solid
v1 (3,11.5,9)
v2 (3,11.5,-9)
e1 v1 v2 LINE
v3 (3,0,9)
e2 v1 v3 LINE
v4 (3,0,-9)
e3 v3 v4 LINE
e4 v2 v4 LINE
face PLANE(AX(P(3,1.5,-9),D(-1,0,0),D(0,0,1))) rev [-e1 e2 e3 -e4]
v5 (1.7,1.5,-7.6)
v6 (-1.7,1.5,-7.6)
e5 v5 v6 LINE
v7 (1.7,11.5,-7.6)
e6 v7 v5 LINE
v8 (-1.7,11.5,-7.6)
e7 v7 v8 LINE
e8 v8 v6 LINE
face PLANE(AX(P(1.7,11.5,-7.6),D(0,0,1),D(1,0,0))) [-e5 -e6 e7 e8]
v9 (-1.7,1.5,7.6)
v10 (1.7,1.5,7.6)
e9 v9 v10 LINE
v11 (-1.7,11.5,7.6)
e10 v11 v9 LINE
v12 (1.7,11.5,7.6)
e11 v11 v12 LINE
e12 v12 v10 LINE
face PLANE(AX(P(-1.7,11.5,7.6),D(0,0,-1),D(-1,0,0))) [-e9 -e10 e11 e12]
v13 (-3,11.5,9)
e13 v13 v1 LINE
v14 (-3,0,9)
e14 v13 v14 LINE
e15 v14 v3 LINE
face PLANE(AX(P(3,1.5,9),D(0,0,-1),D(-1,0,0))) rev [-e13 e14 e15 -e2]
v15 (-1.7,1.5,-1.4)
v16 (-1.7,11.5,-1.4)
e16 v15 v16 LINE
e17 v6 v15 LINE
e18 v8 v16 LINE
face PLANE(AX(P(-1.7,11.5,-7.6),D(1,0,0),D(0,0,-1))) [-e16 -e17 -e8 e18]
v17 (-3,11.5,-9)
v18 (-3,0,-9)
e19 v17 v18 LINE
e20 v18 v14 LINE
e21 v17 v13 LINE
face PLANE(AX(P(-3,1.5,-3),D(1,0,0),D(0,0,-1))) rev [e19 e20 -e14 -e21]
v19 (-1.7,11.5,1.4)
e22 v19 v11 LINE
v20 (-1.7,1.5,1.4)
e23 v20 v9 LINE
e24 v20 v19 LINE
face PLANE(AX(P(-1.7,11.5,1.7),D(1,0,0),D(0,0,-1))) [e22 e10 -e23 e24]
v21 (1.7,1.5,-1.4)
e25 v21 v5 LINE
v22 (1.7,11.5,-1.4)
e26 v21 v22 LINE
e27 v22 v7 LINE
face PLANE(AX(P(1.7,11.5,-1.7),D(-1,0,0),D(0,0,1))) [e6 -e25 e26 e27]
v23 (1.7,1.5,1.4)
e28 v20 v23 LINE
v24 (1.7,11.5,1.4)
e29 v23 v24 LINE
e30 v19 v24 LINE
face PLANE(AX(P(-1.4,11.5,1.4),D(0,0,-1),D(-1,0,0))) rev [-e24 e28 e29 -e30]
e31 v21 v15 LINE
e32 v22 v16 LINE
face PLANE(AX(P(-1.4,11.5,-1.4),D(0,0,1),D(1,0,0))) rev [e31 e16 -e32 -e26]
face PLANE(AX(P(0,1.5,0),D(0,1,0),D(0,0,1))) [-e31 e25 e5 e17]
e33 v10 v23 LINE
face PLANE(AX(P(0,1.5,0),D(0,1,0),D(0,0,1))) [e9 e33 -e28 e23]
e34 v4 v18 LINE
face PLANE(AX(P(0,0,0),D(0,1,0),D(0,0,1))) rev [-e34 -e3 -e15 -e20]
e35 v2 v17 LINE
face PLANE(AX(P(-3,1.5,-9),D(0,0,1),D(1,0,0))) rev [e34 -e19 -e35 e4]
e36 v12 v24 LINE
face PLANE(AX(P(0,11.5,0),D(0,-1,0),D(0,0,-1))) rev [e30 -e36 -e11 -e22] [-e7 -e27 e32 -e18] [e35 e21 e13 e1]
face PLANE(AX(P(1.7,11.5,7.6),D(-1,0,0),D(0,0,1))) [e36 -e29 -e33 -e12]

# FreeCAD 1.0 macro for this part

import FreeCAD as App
import Part
import Sketcher

V = App.Vector
Q = App.Units.Quantity

doc = App.newDocument("Part")
body = doc.addObject("PartDesign::Body", "Body")

# Sketch on XZ plane
sketch1 = body.newObject("Sketcher::SketchObject", "Sketch")
sketch1.AttachmentSupport = (doc.getObject("XZ_Plane"), [""])
sketch1.MapMode = "FlatFace"
sketch1.addGeometry([
    Part.LineSegment(V(-3, -9, 0), V(-3, -3, 0)),  # 0
    Part.LineSegment(V(-3, -3, 0), V(-9, -3, 0)),  # 1
    Part.LineSegment(V(-9, -3, 0), V(-9, 3, 0)),  # 2
    Part.LineSegment(V(-9, 3, 0), V(-3, 3, 0)),  # 3
    Part.LineSegment(V(-3, 3, 0), V(-3, 9, 0)),  # 4
    Part.LineSegment(V(-3, 9, 0), V(3, 9, 0)),  # 5
    Part.LineSegment(V(3, 9, 0), V(3, 3, 0)),  # 6
    Part.LineSegment(V(3, 3, 0), V(9, 3, 0)),  # 7
    Part.LineSegment(V(9, 3, 0), V(9, -3, 0)),  # 8
    Part.LineSegment(V(9, -3, 0), V(3, -3, 0)),  # 9
    Part.LineSegment(V(3, -3, 0), V(3, -9, 0)),  # 10
    Part.LineSegment(V(3, -9, 0), V(-3, -9, 0)),  # 11
], False)
sketch1.addConstraint([
    Sketcher.Constraint("Coincident", 0, 2, 1, 1),
    Sketcher.Constraint("Coincident", 1, 2, 2, 1),
    Sketcher.Constraint("Coincident", 2, 2, 3, 1),
    Sketcher.Constraint("Coincident", 3, 2, 4, 1),
    Sketcher.Constraint("Coincident", 4, 2, 5, 1),
    Sketcher.Constraint("Coincident", 5, 2, 6, 1),
    Sketcher.Constraint("Coincident", 6, 2, 7, 1),
    Sketcher.Constraint("Coincident", 7, 2, 8, 1),
    Sketcher.Constraint("Coincident", 8, 2, 9, 1),
    Sketcher.Constraint("Coincident", 9, 2, 10, 1),
    Sketcher.Constraint("Coincident", 10, 2, 11, 1),
    Sketcher.Constraint("Coincident", 11, 2, 0, 1),
    Sketcher.Constraint("Vertical", 0),
    Sketcher.Constraint("Horizontal", 1),
    Sketcher.Constraint("Vertical", 2),
    Sketcher.Constraint("Horizontal", 3),
    Sketcher.Constraint("Vertical", 4),
    Sketcher.Constraint("Horizontal", 5),
    Sketcher.Constraint("Vertical", 6),
    Sketcher.Constraint("Horizontal", 7),
    Sketcher.Constraint("Vertical", 8),
    Sketcher.Constraint("Horizontal", 9),
    Sketcher.Constraint("Vertical", 10),
    Sketcher.Constraint("Horizontal", 11),
    Sketcher.Constraint("Symmetric", 0, 2, 6, 2, -1, 1),
    Sketcher.Constraint("Symmetric", 2, 2, 8, 2, -1, 1),
    Sketcher.Constraint("Symmetric", 4, 2, 10, 2, -1, 1),
    Sketcher.Constraint("Symmetric", 3, 2, 6, 2, -2),
    Sketcher.Constraint("Equal", 3, 5),
    Sketcher.Constraint("Equal", 11, 0),
    Sketcher.Constraint("Equal", 0, 2),
    Sketcher.Constraint("DistanceX", 1, 2, 1, 1, Q("6 mm")),
])
pad1 = body.newObject("PartDesign::Pad", "Pad")
pad1.Profile = sketch1
pad1.Length = 1.5
pad1.Reversed = True

# Sketch on XZ plane
sketch2 = body.newObject("Sketcher::SketchObject", "Sketch001")
sketch2.AttachmentSupport = (doc.getObject("XZ_Plane"), [""])
sketch2.MapMode = "FlatFace"
sketch2.AttachmentOffset = App.Placement(V(0, 0, -1.5), App.Rotation())
sketch2.addGeometry([
    Part.LineSegment(V(-3, -3, 0), V(-9, -3, 0)),  # 0
    Part.LineSegment(V(-9, -3, 0), V(-9, 3, 0)),  # 1
    Part.LineSegment(V(-9, 3, 0), V(-3, 3, 0)),  # 2
    Part.LineSegment(V(-3, 3, 0), V(-3, 9, 0)),  # 3
    Part.LineSegment(V(-3, 9, 0), V(3, 9, 0)),  # 4
    Part.LineSegment(V(3, 9, 0), V(3, 3, 0)),  # 5
    Part.LineSegment(V(3, 3, 0), V(9, 3, 0)),  # 6
    Part.LineSegment(V(9, 3, 0), V(9, -3, 0)),  # 7
    Part.LineSegment(V(9, -3, 0), V(3, -3, 0)),  # 8
    Part.LineSegment(V(3, -3, 0), V(3, -9, 0)),  # 9
    Part.LineSegment(V(3, -9, 0), V(-3, -9, 0)),  # 10
    Part.LineSegment(V(-3, -9, 0), V(-3, -3, 0)),  # 11
    Part.LineSegment(V(-7.6, -1.7, 0), V(-1.7, -1.7, 0)),  # 12
    Part.LineSegment(V(-1.7, -1.7, 0), V(-1.7, -7.6, 0)),  # 13
    Part.LineSegment(V(-1.7, -7.6, 0), V(1.7, -7.6, 0)),  # 14
    Part.LineSegment(V(1.7, -7.6, 0), V(1.7, -1.7, 0)),  # 15
    Part.LineSegment(V(1.7, -1.7, 0), V(7.6, -1.7, 0)),  # 16
    Part.LineSegment(V(7.6, -1.7, 0), V(7.6, 1.7, 0)),  # 17
    Part.LineSegment(V(7.6, 1.7, 0), V(1.7, 1.7, 0)),  # 18
    Part.LineSegment(V(1.7, 1.7, 0), V(1.7, 7.6, 0)),  # 19
    Part.LineSegment(V(1.7, 7.6, 0), V(-1.7, 7.6, 0)),  # 20
    Part.LineSegment(V(-1.7, 7.6, 0), V(-1.7, 1.7, 0)),  # 21
    Part.LineSegment(V(-1.7, 1.7, 0), V(-7.6, 1.7, 0)),  # 22
    Part.LineSegment(V(-7.6, 1.7, 0), V(-7.6, -1.7, 0)),  # 23
], False)
sketch2.addConstraint([
    Sketcher.Constraint("Coincident", 0, 2, 1, 1),
    Sketcher.Constraint("Coincident", 1, 2, 2, 1),
    Sketcher.Constraint("Coincident", 2, 2, 3, 1),
    Sketcher.Constraint("Coincident", 3, 2, 4, 1),
    Sketcher.Constraint("Coincident", 4, 2, 5, 1),
    Sketcher.Constraint("Coincident", 5, 2, 6, 1),
    Sketcher.Constraint("Coincident", 6, 2, 7, 1),
    Sketcher.Constraint("Coincident", 7, 2, 8, 1),
    Sketcher.Constraint("Coincident", 8, 2, 9, 1),
    Sketcher.Constraint("Coincident", 9, 2, 10, 1),
    Sketcher.Constraint("Coincident", 10, 2, 11, 1),
    Sketcher.Constraint("Coincident", 11, 2, 0, 1),
    Sketcher.Constraint("Coincident", 12, 2, 13, 1),
    Sketcher.Constraint("Coincident", 13, 2, 14, 1),
    Sketcher.Constraint("Coincident", 14, 2, 15, 1),
    Sketcher.Constraint("Coincident", 15, 2, 16, 1),
    Sketcher.Constraint("Coincident", 16, 2, 17, 1),
    Sketcher.Constraint("Coincident", 17, 2, 18, 1),
    Sketcher.Constraint("Coincident", 18, 2, 19, 1),
    Sketcher.Constraint("Coincident", 19, 2, 20, 1),
    Sketcher.Constraint("Coincident", 20, 2, 21, 1),
    Sketcher.Constraint("Coincident", 21, 2, 22, 1),
    Sketcher.Constraint("Coincident", 22, 2, 23, 1),
    Sketcher.Constraint("Coincident", 23, 2, 12, 1),
    Sketcher.Constraint("Horizontal", 0),
    Sketcher.Constraint("Vertical", 1),
    Sketcher.Constraint("Horizontal", 2),
    Sketcher.Constraint("Vertical", 3),
    Sketcher.Constraint("Horizontal", 4),
    Sketcher.Constraint("Vertical", 5),
    Sketcher.Constraint("Horizontal", 6),
    Sketcher.Constraint("Vertical", 7),
    Sketcher.Constraint("Horizontal", 8),
    Sketcher.Constraint("Vertical", 9),
    Sketcher.Constraint("Horizontal", 10),
    Sketcher.Constraint("Vertical", 11),
    Sketcher.Constraint("Horizontal", 12),
    Sketcher.Constraint("Vertical", 13),
    Sketcher.Constraint("Horizontal", 14),
    Sketcher.Constraint("Vertical", 15),
    Sketcher.Constraint("Horizontal", 16),
    Sketcher.Constraint("Vertical", 17),
    Sketcher.Constraint("Horizontal", 18),
    Sketcher.Constraint("Vertical", 19),
    Sketcher.Constraint("Horizontal", 20),
    Sketcher.Constraint("Vertical", 21),
    Sketcher.Constraint("Horizontal", 22),
    Sketcher.Constraint("Vertical", 23),
    Sketcher.Constraint("Symmetric", 0, 2, 6, 2, -1, 1),
    Sketcher.Constraint("Symmetric", 2, 2, 8, 2, -1, 1),
    Sketcher.Constraint("Symmetric", 4, 2, 10, 2, -1, 1),
    Sketcher.Constraint("Symmetric", 12, 2, 18, 2, -1, 1),
    Sketcher.Constraint("Symmetric", 14, 2, 20, 2, -1, 1),
    Sketcher.Constraint("Symmetric", 16, 2, 22, 2, -1, 1),
    Sketcher.Constraint("Symmetric", 2, 2, 5, 2, -2),
    Sketcher.Constraint("Symmetric", 12, 2, 15, 2, -2),
    Sketcher.Constraint("Equal", 2, 4),
    Sketcher.Constraint("Equal", 10, 1),
    Sketcher.Constraint("Equal", 1, 3),
    Sketcher.Constraint("Equal", 22, 13),
    Sketcher.Constraint("Equal", 20, 17),
    Sketcher.Constraint("DistanceX", 0, 2, 0, 1, Q("6 mm")),
    Sketcher.Constraint("DistanceX", 12, 1, 12, 2, Q("5.9 mm")),
    Sketcher.Constraint("DistanceX", 14, 1, 14, 2, Q("3.4 mm")),
])
pad2 = body.newObject("PartDesign::Pad", "Pad001")
pad2.Profile = sketch2
pad2.Length = 10
pad2.Reversed = True

# Sketch on XZ plane
sketch3 = body.newObject("Sketcher::SketchObject", "Sketch002")
sketch3.AttachmentSupport = (doc.getObject("XZ_Plane"), [""])
sketch3.MapMode = "FlatFace"
sketch3.AttachmentOffset = App.Placement(V(0, 0, -1.5), App.Rotation())
sketch3.addGeometry([
    Part.LineSegment(V(-1.4, -1.4, 0), V(-1.4, 1.4, 0)),
    Part.LineSegment(V(-1.4, 1.4, 0), V(1.4, 1.4, 0)),
    Part.LineSegment(V(1.4, 1.4, 0), V(1.4, -1.4, 0)),
    Part.LineSegment(V(1.4, -1.4, 0), V(-1.4, -1.4, 0)),
], False)
sketch3.addConstraint([
    Sketcher.Constraint("Coincident", 0, 2, 1, 1),
    Sketcher.Constraint("Coincident", 1, 2, 2, 1),
    Sketcher.Constraint("Coincident", 2, 2, 3, 1),
    Sketcher.Constraint("Coincident", 3, 2, 0, 1),
    Sketcher.Constraint("Vertical", 0),
    Sketcher.Constraint("Horizontal", 1),
    Sketcher.Constraint("Vertical", 2),
    Sketcher.Constraint("Horizontal", 3),
    Sketcher.Constraint("Symmetric", 0, 2, 2, 2, -1, 1),
    Sketcher.Constraint("Equal", 3, 0),
    Sketcher.Constraint("DistanceX", 1, 1, 1, 2, Q("2.8 mm")),
])
pad3 = body.newObject("PartDesign::Pad", "Pad002")
pad3.Profile = sketch3
pad3.Length = 10
pad3.Reversed = True

# Sketch on XZ plane
sketch4 = body.newObject("Sketcher::SketchObject", "Sketch003")
sketch4.AttachmentSupport = (doc.getObject("XZ_Plane"), [""])
sketch4.MapMode = "FlatFace"
sketch4.AttachmentOffset = App.Placement(V(0, 0, -11.5), App.Rotation())
sketch4.addGeometry([
    Part.LineSegment(V(-9, -3, 0), V(-9, 3, 0)),
    Part.LineSegment(V(-9, 3, 0), V(-3, 3, 0)),
    Part.LineSegment(V(-3, 3, 0), V(-3, -3, 0)),
    Part.LineSegment(V(-3, -3, 0), V(-9, -3, 0)),
], False)
sketch4.addConstraint([
    Sketcher.Constraint("Coincident", 0, 2, 1, 1),
    Sketcher.Constraint("Coincident", 1, 2, 2, 1),
    Sketcher.Constraint("Coincident", 2, 2, 3, 1),
    Sketcher.Constraint("Coincident", 3, 2, 0, 1),
    Sketcher.Constraint("Vertical", 0),
    Sketcher.Constraint("Horizontal", 1),
    Sketcher.Constraint("Vertical", 2),
    Sketcher.Constraint("Horizontal", 3),
    Sketcher.Constraint("Equal", 3, 0),
    Sketcher.Constraint("DistanceX", 1, 1, 1, 2, Q("6 mm")),
    Sketcher.Constraint("DistanceX", 0, 2, -1, 1, Q("9 mm")),
    Sketcher.Constraint("DistanceY", -1, 1, 0, 2, Q("3 mm")),
])
pocket1 = body.newObject("PartDesign::Pocket", "Pocket")
pocket1.Profile = sketch4
pocket1.Type = "ThroughAll"
pocket1.Reversed = True

# Sketch on XZ plane
sketch5 = body.newObject("Sketcher::SketchObject", "Sketch004")
sketch5.AttachmentSupport = (doc.getObject("XZ_Plane"), [""])
sketch5.MapMode = "FlatFace"
sketch5.AttachmentOffset = App.Placement(V(0, 0, -11.5), App.Rotation())
sketch5.addGeometry([
    Part.LineSegment(V(-1.7, -1.7, 0), V(-3, -1.7, 0)),  # 0
    Part.LineSegment(V(-3, -1.7, 0), V(-3, 1.7, 0)),  # 1
    Part.LineSegment(V(-3, 1.7, 0), V(-1.7, 1.7, 0)),  # 2
    Part.LineSegment(V(-1.7, 1.7, 0), V(-1.7, 1.4, 0)),  # 3
    Part.LineSegment(V(-1.7, 1.4, 0), V(-1.4, 1.4, 0)),  # 4
    Part.LineSegment(V(-1.4, 1.4, 0), V(-1.4, -1.4, 0)),  # 5
    Part.LineSegment(V(-1.4, -1.4, 0), V(-1.7, -1.4, 0)),  # 6
    Part.LineSegment(V(-1.7, -1.4, 0), V(-1.7, -1.7, 0)),  # 7
], False)
sketch5.addConstraint([
    Sketcher.Constraint("Coincident", 0, 2, 1, 1),
    Sketcher.Constraint("Coincident", 1, 2, 2, 1),
    Sketcher.Constraint("Coincident", 2, 2, 3, 1),
    Sketcher.Constraint("Coincident", 3, 2, 4, 1),
    Sketcher.Constraint("Coincident", 4, 2, 5, 1),
    Sketcher.Constraint("Coincident", 5, 2, 6, 1),
    Sketcher.Constraint("Coincident", 6, 2, 7, 1),
    Sketcher.Constraint("Coincident", 7, 2, 0, 1),
    Sketcher.Constraint("Horizontal", 0),
    Sketcher.Constraint("Vertical", 1),
    Sketcher.Constraint("Horizontal", 2),
    Sketcher.Constraint("Vertical", 3),
    Sketcher.Constraint("Horizontal", 4),
    Sketcher.Constraint("Vertical", 5),
    Sketcher.Constraint("Horizontal", 6),
    Sketcher.Constraint("Vertical", 7),
    Sketcher.Constraint("Symmetric", 3, 2, 6, 2, -1),
    Sketcher.Constraint("Equal", 6, 3),
    Sketcher.Constraint("Equal", 3, 7),
    Sketcher.Constraint("DistanceX", 0, 2, 0, 1, Q("1.3 mm")),
    Sketcher.Constraint("DistanceX", 4, 1, 4, 2, Q("0.3 mm")),
    Sketcher.Constraint("DistanceY", 1, 1, 1, 2, Q("3.4 mm")),
    Sketcher.Constraint("DistanceX", 0, 2, -1, 1, Q("3 mm")),
])
pad4 = body.newObject("PartDesign::Pad", "Pad003")
pad4.Profile = sketch5
pad4.Length = 11.5

# Sketch on XZ plane
sketch6 = body.newObject("Sketcher::SketchObject", "Sketch005")
sketch6.AttachmentSupport = (doc.getObject("XZ_Plane"), [""])
sketch6.MapMode = "FlatFace"
sketch6.AttachmentOffset = App.Placement(V(0, 0, -11.5), App.Rotation())
sketch6.addGeometry([
    Part.LineSegment(V(3, -3, 0), V(3, 3, 0)),
    Part.LineSegment(V(3, 3, 0), V(9, 3, 0)),
    Part.LineSegment(V(9, 3, 0), V(9, -3, 0)),
    Part.LineSegment(V(9, -3, 0), V(3, -3, 0)),
], False)
sketch6.addConstraint([
    Sketcher.Constraint("Coincident", 0, 2, 1, 1),
    Sketcher.Constraint("Coincident", 1, 2, 2, 1),
    Sketcher.Constraint("Coincident", 2, 2, 3, 1),
    Sketcher.Constraint("Coincident", 3, 2, 0, 1),
    Sketcher.Constraint("Vertical", 0),
    Sketcher.Constraint("Horizontal", 1),
    Sketcher.Constraint("Vertical", 2),
    Sketcher.Constraint("Horizontal", 3),
    Sketcher.Constraint("Equal", 3, 0),
    Sketcher.Constraint("DistanceX", 1, 1, 1, 2, Q("6 mm")),
    Sketcher.Constraint("DistanceX", -1, 1, 0, 2, Q("3 mm")),
    Sketcher.Constraint("DistanceY", -1, 1, 0, 2, Q("3 mm")),
])
pocket2 = body.newObject("PartDesign::Pocket", "Pocket001")
pocket2.Profile = sketch6
pocket2.Type = "ThroughAll"
pocket2.Reversed = True

# Sketch on XZ plane
sketch7 = body.newObject("Sketcher::SketchObject", "Sketch006")
sketch7.AttachmentSupport = (doc.getObject("XZ_Plane"), [""])
sketch7.MapMode = "FlatFace"
sketch7.AttachmentOffset = App.Placement(V(0, 0, -11.5), App.Rotation())
sketch7.addGeometry([
    Part.LineSegment(V(1.4, -1.4, 0), V(1.4, 1.4, 0)),  # 0
    Part.LineSegment(V(1.4, 1.4, 0), V(1.7, 1.4, 0)),  # 1
    Part.LineSegment(V(1.7, 1.4, 0), V(1.7, 1.7, 0)),  # 2
    Part.LineSegment(V(1.7, 1.7, 0), V(3, 1.7, 0)),  # 3
    Part.LineSegment(V(3, 1.7, 0), V(3, -1.7, 0)),  # 4
    Part.LineSegment(V(3, -1.7, 0), V(1.7, -1.7, 0)),  # 5
    Part.LineSegment(V(1.7, -1.7, 0), V(1.7, -1.4, 0)),  # 6
    Part.LineSegment(V(1.7, -1.4, 0), V(1.4, -1.4, 0)),  # 7
], False)
sketch7.addConstraint([
    Sketcher.Constraint("Coincident", 0, 2, 1, 1),
    Sketcher.Constraint("Coincident", 1, 2, 2, 1),
    Sketcher.Constraint("Coincident", 2, 2, 3, 1),
    Sketcher.Constraint("Coincident", 3, 2, 4, 1),
    Sketcher.Constraint("Coincident", 4, 2, 5, 1),
    Sketcher.Constraint("Coincident", 5, 2, 6, 1),
    Sketcher.Constraint("Coincident", 6, 2, 7, 1),
    Sketcher.Constraint("Coincident", 7, 2, 0, 1),
    Sketcher.Constraint("Vertical", 0),
    Sketcher.Constraint("Horizontal", 1),
    Sketcher.Constraint("Vertical", 2),
    Sketcher.Constraint("Horizontal", 3),
    Sketcher.Constraint("Vertical", 4),
    Sketcher.Constraint("Horizontal", 5),
    Sketcher.Constraint("Vertical", 6),
    Sketcher.Constraint("Horizontal", 7),
    Sketcher.Constraint("Symmetric", 2, 2, 5, 2, -1),
    Sketcher.Constraint("Equal", 7, 2),
    Sketcher.Constraint("Equal", 2, 6),
    Sketcher.Constraint("DistanceX", 1, 1, 1, 2, Q("0.3 mm")),
    Sketcher.Constraint("DistanceX", 3, 1, 3, 2, Q("1.3 mm")),
    Sketcher.Constraint("DistanceY", 0, 1, 0, 2, Q("2.8 mm")),
    Sketcher.Constraint("DistanceX", -1, 1, 3, 2, Q("3 mm")),
])
pad5 = body.newObject("PartDesign::Pad", "Pad004")
pad5.Profile = sketch7
pad5.Length = 10

doc.recompute()
